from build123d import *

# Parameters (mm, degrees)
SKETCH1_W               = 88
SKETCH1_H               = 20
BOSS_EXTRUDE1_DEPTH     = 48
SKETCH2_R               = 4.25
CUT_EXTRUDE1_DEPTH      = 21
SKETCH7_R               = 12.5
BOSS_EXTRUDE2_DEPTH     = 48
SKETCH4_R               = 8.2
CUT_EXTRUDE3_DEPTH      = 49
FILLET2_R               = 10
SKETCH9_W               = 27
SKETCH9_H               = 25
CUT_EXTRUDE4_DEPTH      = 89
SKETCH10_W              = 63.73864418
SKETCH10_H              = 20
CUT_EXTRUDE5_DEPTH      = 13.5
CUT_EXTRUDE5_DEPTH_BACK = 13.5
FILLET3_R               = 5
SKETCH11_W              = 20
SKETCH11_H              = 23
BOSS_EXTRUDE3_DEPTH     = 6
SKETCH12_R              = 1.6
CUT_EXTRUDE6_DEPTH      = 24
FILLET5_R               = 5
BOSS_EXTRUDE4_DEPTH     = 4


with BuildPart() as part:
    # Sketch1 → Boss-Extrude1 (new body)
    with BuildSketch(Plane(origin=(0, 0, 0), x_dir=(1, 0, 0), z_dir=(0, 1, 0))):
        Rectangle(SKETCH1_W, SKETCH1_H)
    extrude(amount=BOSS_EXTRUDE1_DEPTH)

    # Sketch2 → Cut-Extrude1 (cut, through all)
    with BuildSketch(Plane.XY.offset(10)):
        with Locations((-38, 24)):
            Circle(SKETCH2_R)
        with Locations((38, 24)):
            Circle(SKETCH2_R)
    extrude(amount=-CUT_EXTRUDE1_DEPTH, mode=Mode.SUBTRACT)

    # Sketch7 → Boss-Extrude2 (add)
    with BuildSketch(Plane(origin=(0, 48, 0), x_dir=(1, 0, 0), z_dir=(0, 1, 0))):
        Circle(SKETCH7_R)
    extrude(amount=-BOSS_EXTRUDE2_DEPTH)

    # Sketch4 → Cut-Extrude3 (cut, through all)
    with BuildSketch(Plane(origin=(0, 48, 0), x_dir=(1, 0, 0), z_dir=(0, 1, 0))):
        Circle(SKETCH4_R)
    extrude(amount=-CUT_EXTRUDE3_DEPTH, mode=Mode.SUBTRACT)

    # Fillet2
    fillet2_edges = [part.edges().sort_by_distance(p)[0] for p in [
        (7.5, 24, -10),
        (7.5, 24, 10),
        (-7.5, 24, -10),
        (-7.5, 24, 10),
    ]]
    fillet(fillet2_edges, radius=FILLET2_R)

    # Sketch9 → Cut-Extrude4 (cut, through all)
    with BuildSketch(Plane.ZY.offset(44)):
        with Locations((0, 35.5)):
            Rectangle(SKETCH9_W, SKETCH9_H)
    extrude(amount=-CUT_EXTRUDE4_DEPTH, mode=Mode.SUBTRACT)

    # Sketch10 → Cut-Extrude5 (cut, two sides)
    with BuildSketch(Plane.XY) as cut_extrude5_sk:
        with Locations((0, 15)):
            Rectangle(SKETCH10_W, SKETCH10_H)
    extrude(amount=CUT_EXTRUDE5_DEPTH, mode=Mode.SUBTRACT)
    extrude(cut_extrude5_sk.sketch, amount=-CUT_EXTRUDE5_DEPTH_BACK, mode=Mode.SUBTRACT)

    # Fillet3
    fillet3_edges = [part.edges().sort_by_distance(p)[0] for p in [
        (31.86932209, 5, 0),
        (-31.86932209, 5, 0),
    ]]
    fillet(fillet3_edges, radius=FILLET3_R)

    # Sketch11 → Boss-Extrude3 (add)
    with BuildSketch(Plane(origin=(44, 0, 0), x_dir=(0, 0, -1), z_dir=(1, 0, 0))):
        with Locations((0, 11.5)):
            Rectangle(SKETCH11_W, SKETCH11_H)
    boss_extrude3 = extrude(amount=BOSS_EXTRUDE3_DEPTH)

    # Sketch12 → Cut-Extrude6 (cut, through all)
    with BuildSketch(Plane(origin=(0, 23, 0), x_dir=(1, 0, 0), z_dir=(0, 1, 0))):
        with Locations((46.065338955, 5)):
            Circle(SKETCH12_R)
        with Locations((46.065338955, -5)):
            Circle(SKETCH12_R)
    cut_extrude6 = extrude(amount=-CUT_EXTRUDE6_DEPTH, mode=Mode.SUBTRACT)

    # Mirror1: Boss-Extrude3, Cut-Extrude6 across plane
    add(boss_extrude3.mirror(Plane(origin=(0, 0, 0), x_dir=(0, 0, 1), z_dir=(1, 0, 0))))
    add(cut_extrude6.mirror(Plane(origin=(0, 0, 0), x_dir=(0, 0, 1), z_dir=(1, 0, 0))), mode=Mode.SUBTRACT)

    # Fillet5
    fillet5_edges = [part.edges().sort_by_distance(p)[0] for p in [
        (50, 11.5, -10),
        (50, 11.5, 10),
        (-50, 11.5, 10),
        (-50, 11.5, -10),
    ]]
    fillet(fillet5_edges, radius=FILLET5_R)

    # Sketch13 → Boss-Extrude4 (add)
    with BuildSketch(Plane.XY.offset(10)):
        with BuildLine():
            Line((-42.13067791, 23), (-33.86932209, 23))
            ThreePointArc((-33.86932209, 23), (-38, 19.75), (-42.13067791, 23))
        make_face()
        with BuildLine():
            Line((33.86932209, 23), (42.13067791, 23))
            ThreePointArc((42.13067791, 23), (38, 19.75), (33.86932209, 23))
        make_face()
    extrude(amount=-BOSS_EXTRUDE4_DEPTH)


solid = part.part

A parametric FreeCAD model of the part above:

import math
import FreeCAD as App
import Part
import Sketcher

V = App.Vector


def edges_at(feature, points):
    """Names of the edges that pass closest to the given points."""
    edges = feature.Shape.Edges
    near = lambda p: min(range(len(edges)), key=lambda i: edges[i].distToShape(Part.Vertex(*p))[0])
    return sorted({f"Edge{near(p) + 1}" for p in points})


def add_polygon(sketch, points):
    """Adds a closed chain of lines whose ends are joined by coincident constraints."""
    first, n = sketch.GeometryCount, len(points)
    for a, b in zip(points, points[1:] + points[:1]):
        sketch.addGeometry(Part.LineSegment(App.Vector(*a, 0), App.Vector(*b, 0)), False)
    for i in range(n):
        sketch.addConstraint(Sketcher.Constraint("Coincident", first + i, 2, first + (i + 1) % n, 1))

doc = App.newDocument("Part")
body = doc.addObject("PartDesign::Body", "Body")

# Sketch on XZ plane
sketch1 = doc.addObject("Sketcher::SketchObject", "Sketch")
body.addObject(sketch1)
sketch1.AttachmentSupport = (doc.XZ_Plane, [""])
sketch1.MapMode = "FlatFace"
add_polygon(sketch1, [(-44, -10), (-44, 10), (44, 10), (44, -10)])  # lines 0-3
sketch1.addConstraint([
    Sketcher.Constraint("Vertical", 0),
    Sketcher.Constraint("Horizontal", 1),
    Sketcher.Constraint("Vertical", 2),
    Sketcher.Constraint("Horizontal", 3),
    Sketcher.Constraint("Symmetric", 0, 2, 2, 2, -1, 1),
    Sketcher.Constraint("DistanceX", 1, 1, 1, 2, 88.0),
    Sketcher.Constraint("DistanceY", 0, 1, 0, 2, 20.0),
])
pad1 = doc.addObject("PartDesign::Pad", "Pad")
body.addObject(pad1)
pad1.Profile = sketch1
pad1.Length = 48
pad1.Reversed = True

# Sketch on XY plane
sketch2 = doc.addObject("Sketcher::SketchObject", "Sketch001")
body.addObject(sketch2)
sketch2.AttachmentSupport = (doc.XY_Plane, [""])
sketch2.MapMode = "FlatFace"
sketch2.AttachmentOffset = App.Placement(V(0, 0, 10), App.Rotation())
sketch2.addGeometry([
    Part.Circle(V(-38, 24, 0), V(0, 0, 1), 4.2),
    Part.Circle(V(38, 24, 0), V(0, 0, 1), 4.2),
], False)
sketch2.addConstraint([
    Sketcher.Constraint("Equal", 0, 1),
    Sketcher.Constraint("Symmetric", 0, 3, 1, 3, -2),
    Sketcher.Constraint("Diameter", 0, 8.5),
    Sketcher.Constraint("DistanceX", 0, 3, -1, 1, 38.0),
    Sketcher.Constraint("DistanceY", -1, 1, 0, 3, 24.0),
])
pocket1 = doc.addObject("PartDesign::Pocket", "Pocket")
body.addObject(pocket1)
pocket1.Profile = sketch2
pocket1.Type = "ThroughAll"

# Sketch on XZ plane
sketch3 = doc.addObject("Sketcher::SketchObject", "Sketch002")
body.addObject(sketch3)
sketch3.AttachmentSupport = (doc.XZ_Plane, [""])
sketch3.MapMode = "FlatFace"
sketch3.AttachmentOffset = App.Placement(V(0, 0, -48), App.Rotation())
sketch3.addGeometry(Part.Circle(V(0, 0, 0), V(0, 0, 1), 12), False)
sketch3.addConstraint([
    Sketcher.Constraint("Coincident", 0, 3, -1, 1),
    Sketcher.Constraint("Diameter", 0, 25.0),
])
pad2 = doc.addObject("PartDesign::Pad", "Pad001")
body.addObject(pad2)
pad2.Profile = sketch3
pad2.Length = 48

# Sketch on XZ plane
sketch4 = doc.addObject("Sketcher::SketchObject", "Sketch003")
body.addObject(sketch4)
sketch4.AttachmentSupport = (doc.XZ_Plane, [""])
sketch4.MapMode = "FlatFace"
sketch4.AttachmentOffset = App.Placement(V(0, 0, -48), App.Rotation())
sketch4.addGeometry(Part.Circle(V(0, 0, 0), V(0, 0, 1), 8), False)
sketch4.addConstraint([
    Sketcher.Constraint("Coincident", 0, 3, -1, 1),
    Sketcher.Constraint("Diameter", 0, 16.4),
])
pocket2 = doc.addObject("PartDesign::Pocket", "Pocket001")
body.addObject(pocket2)
pocket2.Profile = sketch4
pocket2.Type = "ThroughAll"
pocket2.Reversed = True
doc.recompute()

fillet = doc.addObject("PartDesign::Fillet", "Fillet")
body.addObject(fillet)
fillet.Base = (pocket2, edges_at(pocket2, [
    (7.5, 24, -10),
    (7.5, 24, 10),
    (-7.5, 24, -10),
    (-7.5, 24, 10),
]))
fillet.Radius = 10

# Sketch on YZ plane
sketch5 = doc.addObject("Sketcher::SketchObject", "Sketch004")
body.addObject(sketch5)
sketch5.AttachmentSupport = (doc.YZ_Plane, [""])
sketch5.MapMode = "FlatFace"
sketch5.AttachmentOffset = App.Placement(V(0, 0, -44), App.Rotation())
add_polygon(sketch5, [(48, -14), (23, -14), (23, 14), (48, 14)])  # lines 0-3
sketch5.addConstraint([
    Sketcher.Constraint("Horizontal", 0),
    Sketcher.Constraint("Vertical", 1),
    Sketcher.Constraint("Horizontal", 2),
    Sketcher.Constraint("Vertical", 3),
    Sketcher.Constraint("DistanceX", 0, 2, 0, 1, 25.0),
    Sketcher.Constraint("DistanceY", 1, 1, 1, 2, 27.0),
    Sketcher.Constraint("DistanceX", -1, 1, 0, 2, 23.0),
    Sketcher.Constraint("DistanceY", 0, 2, -1, 1, 13.5),
])
pocket3 = doc.addObject("PartDesign::Pocket", "Pocket002")
body.addObject(pocket3)
pocket3.Profile = sketch5
pocket3.Type = "ThroughAll"
pocket3.Reversed = True

# Sketch on XY plane
sketch6 = doc.addObject("Sketcher::SketchObject", "Sketch005")
body.addObject(sketch6)
sketch6.AttachmentSupport = (doc.XY_Plane, [""])
sketch6.MapMode = "FlatFace"
add_polygon(sketch6, [(-32, 25), (-32, 5), (32, 5), (32, 25)])  # lines 0-3
sketch6.addConstraint([
    Sketcher.Constraint("Vertical", 0),
    Sketcher.Constraint("Horizontal", 1),
    Sketcher.Constraint("Vertical", 2),
    Sketcher.Constraint("Horizontal", 3),
    Sketcher.Constraint("DistanceY", 0, 2, 0, 1, 20.0),
    Sketcher.Constraint("DistanceY", -1, 1, 0, 2, 5.0),
    Sketcher.Constraint("DistanceX", 1, 1, 1, 2, 63.738644),
    Sketcher.Constraint("DistanceX", 0, 2, -1, 1, 31.869322),
])
pocket4 = doc.addObject("PartDesign::Pocket", "Pocket003")
body.addObject(pocket4)
pocket4.Profile = sketch6
pocket4.Type = "ThroughAll"
pocket4.Midplane = True
doc.recompute()

fillet2 = doc.addObject("PartDesign::Fillet", "Fillet001")
body.addObject(fillet2)
fillet2.Base = (pocket4, edges_at(pocket4, [(31.869, 5, 0), (-31.869, 5, 0)]))
fillet2.Radius = 5

# Sketch on YZ plane
sketch7 = doc.addObject("Sketcher::SketchObject", "Sketch006")
body.addObject(sketch7)
sketch7.AttachmentSupport = (doc.YZ_Plane, [""])
sketch7.MapMode = "FlatFace"
sketch7.AttachmentOffset = App.Placement(V(0, 0, 44), App.Rotation())
add_polygon(sketch7, [(23, 10), (0, 10), (0, -10), (23, -10)])  # lines 0-3
sketch7.addConstraint([
    Sketcher.Constraint("Horizontal", 0),
    Sketcher.Constraint("Vertical", 1),
    Sketcher.Constraint("Horizontal", 2),
    Sketcher.Constraint("Vertical", 3),
    Sketcher.Constraint("Symmetric", 0, 2, 1, 2, -1, 1),
    Sketcher.Constraint("DistanceX", 0, 2, 0, 1, 23.0),
    Sketcher.Constraint("DistanceY", 1, 2, 1, 1, 20.0),
])
pad3 = doc.addObject("PartDesign::Pad", "Pad002")
body.addObject(pad3)
pad3.Profile = sketch7
pad3.Length = 6

# Sketch on XZ plane
sketch8 = doc.addObject("Sketcher::SketchObject", "Sketch007")
body.addObject(sketch8)
sketch8.AttachmentSupport = (doc.XZ_Plane, [""])
sketch8.MapMode = "FlatFace"
sketch8.AttachmentOffset = App.Placement(V(0, 0, -23), App.Rotation())
sketch8.addGeometry([
    Part.Circle(V(46.1, -5, 0), V(0, 0, 1), 1.6),
    Part.Circle(V(46.1, 5, 0), V(0, 0, 1), 1.6),
], False)
sketch8.addConstraint([
    Sketcher.Constraint("Equal", 0, 1),
    Sketcher.Constraint("Symmetric", 0, 3, 1, 3, -1),
    Sketcher.Constraint("Diameter", 0, 3.2),
    Sketcher.Constraint("DistanceY", 0, 3, -1, 1, 5.0),
    Sketcher.Constraint("DistanceX", -1, 1, 0, 3, 46.065339),
])
pocket5 = doc.addObject("PartDesign::Pocket", "Pocket004")
body.addObject(pocket5)
pocket5.Profile = sketch8
pocket5.Type = "ThroughAll"
pocket5.Reversed = True
doc.recompute()

mirrored = doc.addObject("PartDesign::Mirrored", "Mirrored")
body.addObject(mirrored)
mirrored.Originals = [pad3, pocket5]
mirrored.MirrorPlane = (doc.YZ_Plane, [""])
body.Tip = mirrored
doc.recompute()

fillet3 = doc.addObject("PartDesign::Fillet", "Fillet002")
body.addObject(fillet3)
fillet3.Base = (mirrored, edges_at(mirrored, [
    (50, 11.5, -10),
    (50, 11.5, 10),
    (-50, 11.5, 10),
    (-50, 11.5, -10),
]))
fillet3.Radius = 5

# Sketch on XY plane
sketch9 = doc.addObject("Sketcher::SketchObject", "Sketch008")
body.addObject(sketch9)
sketch9.AttachmentSupport = (doc.XY_Plane, [""])
sketch9.MapMode = "FlatFace"
sketch9.AttachmentOffset = App.Placement(V(0, 0, 10), App.Rotation())
sketch9.addGeometry([
    Part.LineSegment(V(-33.9, 23, 0), V(-42.1, 23, 0)),
    Part.ArcOfCircle(Part.Circle(V(-38, 24, 0), V(0, 0, 1), 4.2), math.radians(-166), math.radians(-14)),
    Part.LineSegment(V(42.1, 23, 0), V(33.9, 23, 0)),
    Part.ArcOfCircle(Part.Circle(V(38, 24, 0), V(0, 0, 1), 4.2), math.radians(-166), math.radians(-14)),
], False)
sketch9.addConstraint([
    Sketcher.Constraint("Coincident", 0, 1, 1, 2),
    Sketcher.Constraint("Coincident", 1, 1, 0, 2),
    Sketcher.Constraint("Coincident", 2, 1, 3, 2),
    Sketcher.Constraint("Coincident", 3, 1, 2, 2),
    Sketcher.Constraint("Horizontal", 0),
    Sketcher.Constraint("Horizontal", 2),
    Sketcher.Constraint("Equal", 1, 3),
    Sketcher.Constraint("Symmetric", 1, 3, 3, 3, -2),
    Sketcher.Constraint("Horizontal", 1, 1, 2, 1),
    Sketcher.Constraint("Radius", 1, 4.25),
    Sketcher.Constraint("DistanceX", 1, 3, -1, 1, 38.0),
    Sketcher.Constraint("DistanceY", -1, 1, 1, 3, 24.0),
    Sketcher.Constraint("DistanceY", -1, 1, 0, 1, 23.0),
])
pad4 = doc.addObject("PartDesign::Pad", "Pad003")
body.addObject(pad4)
pad4.Profile = sketch9
pad4.Length = 4
pad4.Reversed = True

doc.recompute()
